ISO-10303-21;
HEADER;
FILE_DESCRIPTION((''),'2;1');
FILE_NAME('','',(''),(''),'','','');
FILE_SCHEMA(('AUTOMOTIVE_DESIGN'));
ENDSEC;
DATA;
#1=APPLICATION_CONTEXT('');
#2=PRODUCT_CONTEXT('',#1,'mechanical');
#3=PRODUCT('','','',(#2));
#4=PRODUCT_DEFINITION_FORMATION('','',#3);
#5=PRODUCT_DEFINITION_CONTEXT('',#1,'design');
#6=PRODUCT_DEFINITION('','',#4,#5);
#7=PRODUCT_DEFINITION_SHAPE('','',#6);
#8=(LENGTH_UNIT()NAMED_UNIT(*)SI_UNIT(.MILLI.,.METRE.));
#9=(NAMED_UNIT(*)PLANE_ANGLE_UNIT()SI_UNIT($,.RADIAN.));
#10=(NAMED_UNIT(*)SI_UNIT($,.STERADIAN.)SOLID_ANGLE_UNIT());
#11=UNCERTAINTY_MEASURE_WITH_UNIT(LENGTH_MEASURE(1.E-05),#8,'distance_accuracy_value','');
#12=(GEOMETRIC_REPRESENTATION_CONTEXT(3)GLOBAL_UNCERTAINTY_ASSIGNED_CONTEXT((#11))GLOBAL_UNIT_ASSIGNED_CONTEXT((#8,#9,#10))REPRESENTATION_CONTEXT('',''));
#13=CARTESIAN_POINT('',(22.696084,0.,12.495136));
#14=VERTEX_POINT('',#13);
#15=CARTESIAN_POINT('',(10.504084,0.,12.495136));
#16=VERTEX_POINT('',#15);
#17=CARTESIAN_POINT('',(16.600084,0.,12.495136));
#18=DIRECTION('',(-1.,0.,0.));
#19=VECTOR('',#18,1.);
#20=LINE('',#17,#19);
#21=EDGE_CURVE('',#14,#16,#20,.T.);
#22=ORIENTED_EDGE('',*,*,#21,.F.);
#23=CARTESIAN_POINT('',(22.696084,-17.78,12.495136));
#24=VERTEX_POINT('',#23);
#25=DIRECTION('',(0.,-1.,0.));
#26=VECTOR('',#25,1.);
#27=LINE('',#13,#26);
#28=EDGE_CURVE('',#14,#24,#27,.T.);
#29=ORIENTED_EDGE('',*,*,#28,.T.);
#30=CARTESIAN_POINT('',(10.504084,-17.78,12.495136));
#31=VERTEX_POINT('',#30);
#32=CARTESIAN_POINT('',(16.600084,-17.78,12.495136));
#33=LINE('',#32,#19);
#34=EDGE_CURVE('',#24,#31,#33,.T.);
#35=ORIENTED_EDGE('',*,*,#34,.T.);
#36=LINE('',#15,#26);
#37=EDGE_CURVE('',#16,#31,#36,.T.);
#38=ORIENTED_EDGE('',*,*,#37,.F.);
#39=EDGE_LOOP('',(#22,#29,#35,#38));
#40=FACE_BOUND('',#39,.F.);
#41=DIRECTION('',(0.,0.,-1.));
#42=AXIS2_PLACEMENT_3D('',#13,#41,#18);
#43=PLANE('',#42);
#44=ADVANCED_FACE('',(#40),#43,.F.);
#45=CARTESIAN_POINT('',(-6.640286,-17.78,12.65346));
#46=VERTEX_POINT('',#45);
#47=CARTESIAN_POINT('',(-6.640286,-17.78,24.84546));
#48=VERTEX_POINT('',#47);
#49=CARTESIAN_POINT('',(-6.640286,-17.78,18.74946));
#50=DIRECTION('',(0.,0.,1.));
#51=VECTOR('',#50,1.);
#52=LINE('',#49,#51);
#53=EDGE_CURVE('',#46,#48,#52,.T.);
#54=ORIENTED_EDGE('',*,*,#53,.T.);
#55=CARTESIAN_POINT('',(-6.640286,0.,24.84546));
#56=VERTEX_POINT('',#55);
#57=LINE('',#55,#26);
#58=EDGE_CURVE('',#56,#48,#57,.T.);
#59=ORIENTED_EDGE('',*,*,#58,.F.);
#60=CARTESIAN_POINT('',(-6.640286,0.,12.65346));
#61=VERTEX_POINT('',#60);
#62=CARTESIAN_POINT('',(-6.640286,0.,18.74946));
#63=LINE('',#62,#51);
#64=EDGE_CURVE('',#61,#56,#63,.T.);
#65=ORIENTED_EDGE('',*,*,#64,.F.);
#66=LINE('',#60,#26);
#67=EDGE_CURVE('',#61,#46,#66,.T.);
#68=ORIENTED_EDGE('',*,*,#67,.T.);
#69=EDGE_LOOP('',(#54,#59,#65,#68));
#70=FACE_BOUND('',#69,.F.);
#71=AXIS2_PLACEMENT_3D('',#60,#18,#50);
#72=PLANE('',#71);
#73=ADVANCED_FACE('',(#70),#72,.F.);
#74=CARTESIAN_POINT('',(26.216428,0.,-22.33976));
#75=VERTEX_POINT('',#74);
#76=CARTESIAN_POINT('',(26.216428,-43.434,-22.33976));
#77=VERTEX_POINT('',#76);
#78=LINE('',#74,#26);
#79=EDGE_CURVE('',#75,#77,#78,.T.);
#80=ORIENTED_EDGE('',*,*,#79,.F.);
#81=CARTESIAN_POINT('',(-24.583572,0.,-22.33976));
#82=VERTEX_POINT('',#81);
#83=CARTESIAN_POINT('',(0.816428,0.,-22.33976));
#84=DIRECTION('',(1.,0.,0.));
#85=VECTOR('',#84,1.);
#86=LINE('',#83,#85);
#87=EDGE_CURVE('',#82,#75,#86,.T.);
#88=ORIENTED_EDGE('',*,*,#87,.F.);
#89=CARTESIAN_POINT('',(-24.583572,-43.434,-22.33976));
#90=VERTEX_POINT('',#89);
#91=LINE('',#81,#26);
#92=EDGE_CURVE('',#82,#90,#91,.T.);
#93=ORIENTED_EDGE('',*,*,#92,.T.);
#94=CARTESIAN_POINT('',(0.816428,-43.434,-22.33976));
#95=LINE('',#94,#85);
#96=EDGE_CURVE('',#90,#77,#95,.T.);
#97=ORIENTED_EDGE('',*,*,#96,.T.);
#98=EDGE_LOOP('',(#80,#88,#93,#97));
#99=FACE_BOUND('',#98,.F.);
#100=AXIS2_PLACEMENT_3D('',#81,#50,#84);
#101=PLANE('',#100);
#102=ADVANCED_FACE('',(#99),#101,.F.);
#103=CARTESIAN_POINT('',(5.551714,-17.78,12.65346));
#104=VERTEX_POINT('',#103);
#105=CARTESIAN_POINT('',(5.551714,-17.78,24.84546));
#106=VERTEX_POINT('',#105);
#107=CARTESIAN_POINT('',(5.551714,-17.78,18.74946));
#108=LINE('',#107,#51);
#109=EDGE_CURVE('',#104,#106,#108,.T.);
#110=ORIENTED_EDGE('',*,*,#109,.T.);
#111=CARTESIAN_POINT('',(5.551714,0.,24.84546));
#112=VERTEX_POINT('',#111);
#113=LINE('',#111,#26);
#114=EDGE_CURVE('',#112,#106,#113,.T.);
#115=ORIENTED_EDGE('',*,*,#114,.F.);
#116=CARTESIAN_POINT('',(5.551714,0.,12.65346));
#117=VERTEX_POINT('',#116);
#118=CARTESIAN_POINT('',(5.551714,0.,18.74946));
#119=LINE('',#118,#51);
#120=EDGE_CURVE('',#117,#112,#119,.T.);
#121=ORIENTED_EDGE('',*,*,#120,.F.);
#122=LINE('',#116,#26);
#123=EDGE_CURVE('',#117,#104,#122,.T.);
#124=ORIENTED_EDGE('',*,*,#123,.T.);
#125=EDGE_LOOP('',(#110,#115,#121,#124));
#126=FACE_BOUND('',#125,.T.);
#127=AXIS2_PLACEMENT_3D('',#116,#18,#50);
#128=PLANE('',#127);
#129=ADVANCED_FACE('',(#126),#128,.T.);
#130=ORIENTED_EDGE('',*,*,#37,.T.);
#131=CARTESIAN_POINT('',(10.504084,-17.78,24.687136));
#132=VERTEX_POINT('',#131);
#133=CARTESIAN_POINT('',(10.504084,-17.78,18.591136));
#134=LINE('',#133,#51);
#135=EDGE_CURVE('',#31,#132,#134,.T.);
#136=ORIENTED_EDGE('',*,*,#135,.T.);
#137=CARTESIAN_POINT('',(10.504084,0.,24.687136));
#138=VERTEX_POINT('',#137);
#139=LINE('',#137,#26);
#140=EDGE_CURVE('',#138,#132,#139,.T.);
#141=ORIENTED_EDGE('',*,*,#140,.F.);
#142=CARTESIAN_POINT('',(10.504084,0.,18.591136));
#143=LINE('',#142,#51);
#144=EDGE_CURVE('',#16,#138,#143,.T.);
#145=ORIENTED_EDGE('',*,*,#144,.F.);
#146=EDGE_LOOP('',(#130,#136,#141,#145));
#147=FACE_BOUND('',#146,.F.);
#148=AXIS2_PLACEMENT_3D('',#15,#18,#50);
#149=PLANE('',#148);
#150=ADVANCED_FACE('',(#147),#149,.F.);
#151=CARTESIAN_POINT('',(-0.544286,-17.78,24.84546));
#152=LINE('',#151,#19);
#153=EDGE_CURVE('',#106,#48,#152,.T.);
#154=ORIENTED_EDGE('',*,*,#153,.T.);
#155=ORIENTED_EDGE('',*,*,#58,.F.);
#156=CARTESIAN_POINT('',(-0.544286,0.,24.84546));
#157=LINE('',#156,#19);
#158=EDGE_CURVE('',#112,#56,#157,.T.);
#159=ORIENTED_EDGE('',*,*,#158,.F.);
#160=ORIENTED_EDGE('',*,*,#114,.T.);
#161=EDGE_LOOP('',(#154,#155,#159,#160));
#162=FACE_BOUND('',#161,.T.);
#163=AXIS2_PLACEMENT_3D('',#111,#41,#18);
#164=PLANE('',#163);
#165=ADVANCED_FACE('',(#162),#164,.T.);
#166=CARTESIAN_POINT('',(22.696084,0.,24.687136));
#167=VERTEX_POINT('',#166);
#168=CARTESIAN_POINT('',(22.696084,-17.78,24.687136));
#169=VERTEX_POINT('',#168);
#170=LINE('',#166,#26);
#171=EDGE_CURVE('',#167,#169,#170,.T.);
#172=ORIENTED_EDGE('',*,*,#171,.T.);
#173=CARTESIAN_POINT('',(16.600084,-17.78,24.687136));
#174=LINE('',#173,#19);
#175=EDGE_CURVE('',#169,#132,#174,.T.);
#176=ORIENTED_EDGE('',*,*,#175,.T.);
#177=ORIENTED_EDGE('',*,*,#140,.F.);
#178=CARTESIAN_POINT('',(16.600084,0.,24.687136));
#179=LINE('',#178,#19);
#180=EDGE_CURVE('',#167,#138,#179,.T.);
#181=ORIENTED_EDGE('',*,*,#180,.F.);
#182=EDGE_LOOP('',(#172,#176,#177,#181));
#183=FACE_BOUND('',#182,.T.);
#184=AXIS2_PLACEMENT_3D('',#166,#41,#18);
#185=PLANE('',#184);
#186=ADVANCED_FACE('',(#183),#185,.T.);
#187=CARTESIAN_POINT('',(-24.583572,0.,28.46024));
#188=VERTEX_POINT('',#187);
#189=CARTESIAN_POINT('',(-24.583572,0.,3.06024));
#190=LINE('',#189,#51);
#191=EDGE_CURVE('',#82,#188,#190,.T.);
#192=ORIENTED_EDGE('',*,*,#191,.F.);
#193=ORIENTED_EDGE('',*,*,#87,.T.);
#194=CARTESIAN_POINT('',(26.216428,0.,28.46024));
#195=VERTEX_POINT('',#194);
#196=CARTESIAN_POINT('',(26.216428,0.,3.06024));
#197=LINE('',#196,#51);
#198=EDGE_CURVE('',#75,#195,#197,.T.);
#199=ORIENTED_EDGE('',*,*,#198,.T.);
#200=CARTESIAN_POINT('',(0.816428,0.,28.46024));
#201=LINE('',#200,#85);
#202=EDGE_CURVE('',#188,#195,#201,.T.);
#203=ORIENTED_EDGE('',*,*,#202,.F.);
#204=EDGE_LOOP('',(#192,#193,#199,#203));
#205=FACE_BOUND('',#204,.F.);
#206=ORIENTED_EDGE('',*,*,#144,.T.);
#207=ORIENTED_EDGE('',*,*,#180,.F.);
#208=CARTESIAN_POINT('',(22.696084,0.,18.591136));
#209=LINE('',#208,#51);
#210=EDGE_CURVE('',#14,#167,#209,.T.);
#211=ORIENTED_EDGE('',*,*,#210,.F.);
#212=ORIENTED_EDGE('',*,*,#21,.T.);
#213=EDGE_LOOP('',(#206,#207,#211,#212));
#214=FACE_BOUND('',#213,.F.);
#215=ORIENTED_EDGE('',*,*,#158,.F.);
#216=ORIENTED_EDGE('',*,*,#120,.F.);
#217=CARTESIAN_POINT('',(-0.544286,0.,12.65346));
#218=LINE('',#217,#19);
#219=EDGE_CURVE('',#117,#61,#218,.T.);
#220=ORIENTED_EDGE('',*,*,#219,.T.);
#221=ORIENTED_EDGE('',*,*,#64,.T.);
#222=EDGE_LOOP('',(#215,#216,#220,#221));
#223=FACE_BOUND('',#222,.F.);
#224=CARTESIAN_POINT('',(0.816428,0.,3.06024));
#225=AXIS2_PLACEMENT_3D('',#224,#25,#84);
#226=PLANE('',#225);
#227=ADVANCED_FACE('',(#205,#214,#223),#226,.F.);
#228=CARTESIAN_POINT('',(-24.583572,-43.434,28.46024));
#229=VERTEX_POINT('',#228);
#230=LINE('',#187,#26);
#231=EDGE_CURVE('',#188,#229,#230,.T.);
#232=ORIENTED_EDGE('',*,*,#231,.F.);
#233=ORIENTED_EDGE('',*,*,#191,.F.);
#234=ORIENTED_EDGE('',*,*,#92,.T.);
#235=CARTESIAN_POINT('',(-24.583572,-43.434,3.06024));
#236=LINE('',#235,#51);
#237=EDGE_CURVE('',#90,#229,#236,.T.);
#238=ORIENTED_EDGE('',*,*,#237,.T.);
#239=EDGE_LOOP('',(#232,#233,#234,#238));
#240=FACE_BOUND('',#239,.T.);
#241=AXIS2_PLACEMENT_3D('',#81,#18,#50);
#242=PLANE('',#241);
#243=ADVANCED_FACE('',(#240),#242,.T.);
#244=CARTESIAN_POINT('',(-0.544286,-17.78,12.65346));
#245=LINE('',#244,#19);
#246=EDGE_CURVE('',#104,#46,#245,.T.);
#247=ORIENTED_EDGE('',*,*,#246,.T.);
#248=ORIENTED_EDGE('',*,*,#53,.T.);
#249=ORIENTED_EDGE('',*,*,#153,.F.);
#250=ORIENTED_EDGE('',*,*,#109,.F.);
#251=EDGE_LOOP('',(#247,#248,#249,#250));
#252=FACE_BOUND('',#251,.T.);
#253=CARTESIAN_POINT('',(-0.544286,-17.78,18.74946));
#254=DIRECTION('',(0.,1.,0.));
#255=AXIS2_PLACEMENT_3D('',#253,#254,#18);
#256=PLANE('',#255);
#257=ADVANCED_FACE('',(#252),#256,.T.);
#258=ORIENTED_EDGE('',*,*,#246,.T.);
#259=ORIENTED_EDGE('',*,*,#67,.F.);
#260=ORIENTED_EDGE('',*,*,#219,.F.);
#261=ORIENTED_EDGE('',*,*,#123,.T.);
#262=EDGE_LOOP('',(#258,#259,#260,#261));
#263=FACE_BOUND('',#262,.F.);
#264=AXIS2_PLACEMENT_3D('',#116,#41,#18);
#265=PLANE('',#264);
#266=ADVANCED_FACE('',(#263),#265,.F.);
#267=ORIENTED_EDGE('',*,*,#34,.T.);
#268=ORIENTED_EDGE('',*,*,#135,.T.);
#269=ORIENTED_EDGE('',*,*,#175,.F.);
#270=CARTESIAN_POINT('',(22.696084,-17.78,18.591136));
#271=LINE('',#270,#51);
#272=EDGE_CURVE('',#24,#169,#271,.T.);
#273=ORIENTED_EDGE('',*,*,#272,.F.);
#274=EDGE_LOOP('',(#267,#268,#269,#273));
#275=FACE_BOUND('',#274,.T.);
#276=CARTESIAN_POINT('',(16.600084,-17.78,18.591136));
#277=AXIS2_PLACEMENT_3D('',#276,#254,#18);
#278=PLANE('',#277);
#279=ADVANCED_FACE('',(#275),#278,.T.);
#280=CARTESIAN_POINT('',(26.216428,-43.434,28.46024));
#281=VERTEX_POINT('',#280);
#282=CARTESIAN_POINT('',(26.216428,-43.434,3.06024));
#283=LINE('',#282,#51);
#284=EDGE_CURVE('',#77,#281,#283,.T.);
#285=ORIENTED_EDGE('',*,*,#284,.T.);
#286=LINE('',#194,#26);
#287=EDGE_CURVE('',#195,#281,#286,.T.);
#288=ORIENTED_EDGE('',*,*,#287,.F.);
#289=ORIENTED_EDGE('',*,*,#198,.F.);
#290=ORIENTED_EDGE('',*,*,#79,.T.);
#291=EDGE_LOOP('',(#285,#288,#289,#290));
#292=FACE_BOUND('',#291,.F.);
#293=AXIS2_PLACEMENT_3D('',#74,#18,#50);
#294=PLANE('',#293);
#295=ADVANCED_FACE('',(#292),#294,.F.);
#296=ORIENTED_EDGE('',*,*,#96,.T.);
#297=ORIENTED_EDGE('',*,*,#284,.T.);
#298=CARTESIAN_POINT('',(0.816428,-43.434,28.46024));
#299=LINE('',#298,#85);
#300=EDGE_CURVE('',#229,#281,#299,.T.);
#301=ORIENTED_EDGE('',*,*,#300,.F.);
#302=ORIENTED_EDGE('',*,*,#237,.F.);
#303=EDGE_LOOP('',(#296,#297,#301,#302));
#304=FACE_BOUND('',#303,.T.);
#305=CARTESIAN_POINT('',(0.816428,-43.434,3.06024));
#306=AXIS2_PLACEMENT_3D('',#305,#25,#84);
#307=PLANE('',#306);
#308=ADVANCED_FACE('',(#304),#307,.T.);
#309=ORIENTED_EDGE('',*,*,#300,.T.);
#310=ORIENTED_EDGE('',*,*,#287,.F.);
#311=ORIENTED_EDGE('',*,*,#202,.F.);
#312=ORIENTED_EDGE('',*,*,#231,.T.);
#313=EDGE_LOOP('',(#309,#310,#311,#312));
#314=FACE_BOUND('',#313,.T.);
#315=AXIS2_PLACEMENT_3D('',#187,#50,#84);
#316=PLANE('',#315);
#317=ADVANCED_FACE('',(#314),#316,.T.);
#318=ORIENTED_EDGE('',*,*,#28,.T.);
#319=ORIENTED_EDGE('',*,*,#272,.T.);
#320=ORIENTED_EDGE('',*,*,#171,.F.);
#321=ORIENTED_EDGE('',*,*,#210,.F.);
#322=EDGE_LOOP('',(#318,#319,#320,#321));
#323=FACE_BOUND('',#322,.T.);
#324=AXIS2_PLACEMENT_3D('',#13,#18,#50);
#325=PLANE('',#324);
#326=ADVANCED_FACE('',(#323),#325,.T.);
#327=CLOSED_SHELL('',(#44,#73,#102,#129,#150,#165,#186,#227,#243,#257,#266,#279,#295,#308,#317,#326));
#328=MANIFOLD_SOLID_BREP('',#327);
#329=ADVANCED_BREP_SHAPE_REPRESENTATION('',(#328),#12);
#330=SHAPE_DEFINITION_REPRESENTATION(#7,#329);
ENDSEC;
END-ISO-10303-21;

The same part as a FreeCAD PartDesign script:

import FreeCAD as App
import Part
import Sketcher
from FreeCAD import Vector
Q = App.Units.Quantity

doc = App.newDocument("Part")
body = doc.addObject("PartDesign::Body", "Body")

sketch1 = body.newObject("Sketcher::SketchObject", "Sketch")
sketch1.AttachmentSupport = (doc.getObject("XZ_Plane"), [""])
sketch1.MapMode = "FlatFace"
sketch1.addGeometry(Part.LineSegment(Vector(-24.583572, 28.46024, 0), Vector(-24.583572, -22.33976, 0)), False)
sketch1.addGeometry(Part.LineSegment(Vector(-24.583572, -22.33976, 0), Vector(26.216428, -22.33976, 0)), False)
sketch1.addGeometry(Part.LineSegment(Vector(26.216428, -22.33976, 0), Vector(26.216428, 28.46024, 0)), False)
sketch1.addGeometry(Part.LineSegment(Vector(26.216428, 28.46024, 0), Vector(-24.583572, 28.46024, 0)), False)
sketch1.addConstraint(Sketcher.Constraint("Coincident", 0, 2, 1, 1))
sketch1.addConstraint(Sketcher.Constraint("Coincident", 1, 2, 2, 1))
sketch1.addConstraint(Sketcher.Constraint("Coincident", 2, 2, 3, 1))
sketch1.addConstraint(Sketcher.Constraint("Coincident", 3, 2, 0, 1))
sketch1.addConstraint(Sketcher.Constraint("Vertical", 0))
sketch1.addConstraint(Sketcher.Constraint("Horizontal", 1))
sketch1.addConstraint(Sketcher.Constraint("Vertical", 2))
sketch1.addConstraint(Sketcher.Constraint("Horizontal", 3))
sketch1.addConstraint(Sketcher.Constraint("Equal", 3, 0))
sketch1.addConstraint(Sketcher.Constraint("DistanceX", 1, 1, 1, 2, Q("2 in")))
sketch1.addConstraint(Sketcher.Constraint("DistanceX", 0, 2, -1, 1, Q("24.583572 mm")))
sketch1.addConstraint(Sketcher.Constraint("DistanceY", 0, 2, -1, 1, Q("22.33976 mm")))
pad1 = body.newObject("PartDesign::Pad", "Pad")
pad1.Profile = sketch1
pad1.Length = Q("1.71 in")

sketch2 = body.newObject("Sketcher::SketchObject", "Sketch001")
sketch2.AttachmentSupport = (doc.getObject("XZ_Plane"), [""])
sketch2.MapMode = "FlatFace"
sketch2.addGeometry(Part.LineSegment(Vector(22.696084, 24.687136, 0), Vector(22.696084, 12.495136, 0)), False)
sketch2.addGeometry(Part.LineSegment(Vector(22.696084, 12.495136, 0), Vector(10.504084, 12.495136, 0)), False)
sketch2.addGeometry(Part.LineSegment(Vector(10.504084, 12.495136, 0), Vector(10.504084, 24.687136, 0)), False)
sketch2.addGeometry(Part.LineSegment(Vector(10.504084, 24.687136, 0), Vector(22.696084, 24.687136, 0)), False)
sketch2.addConstraint(Sketcher.Constraint("Coincident", 0, 2, 1, 1))
sketch2.addConstraint(Sketcher.Constraint("Coincident", 1, 2, 2, 1))
sketch2.addConstraint(Sketcher.Constraint("Coincident", 2, 2, 3, 1))
sketch2.addConstraint(Sketcher.Constraint("Coincident", 3, 2, 0, 1))
sketch2.addConstraint(Sketcher.Constraint("Vertical", 0))
sketch2.addConstraint(Sketcher.Constraint("Horizontal", 1))
sketch2.addConstraint(Sketcher.Constraint("Vertical", 2))
sketch2.addConstraint(Sketcher.Constraint("Horizontal", 3))
sketch2.addConstraint(Sketcher.Constraint("Equal", 3, 0))
sketch2.addConstraint(Sketcher.Constraint("DistanceX", 1, 2, 1, 1, Q("0.48 in")))
sketch2.addConstraint(Sketcher.Constraint("DistanceX", -1, 1, 0, 2, Q("22.696084 mm")))
sketch2.addConstraint(Sketcher.Constraint("DistanceY", -1, 1, 0, 2, Q("12.495136 mm")))
pocket1 = body.newObject("PartDesign::Pocket", "Pocket")
pocket1.Profile = sketch2
pocket1.Length = Q("0.7 in")
pocket1.Reversed = True

sketch3 = body.newObject("Sketcher::SketchObject", "Sketch002")
sketch3.AttachmentSupport = (doc.getObject("XZ_Plane"), [""])
sketch3.MapMode = "FlatFace"
sketch3.addGeometry(Part.LineSegment(Vector(5.551714, 24.84546, 0), Vector(5.551714, 12.65346, 0)), False)
sketch3.addGeometry(Part.LineSegment(Vector(5.551714, 12.65346, 0), Vector(-6.640286, 12.65346, 0)), False)
sketch3.addGeometry(Part.LineSegment(Vector(-6.640286, 12.65346, 0), Vector(-6.640286, 24.84546, 0)), False)
sketch3.addGeometry(Part.LineSegment(Vector(-6.640286, 24.84546, 0), Vector(5.551714, 24.84546, 0)), False)
sketch3.addConstraint(Sketcher.Constraint("Coincident", 0, 2, 1, 1))
sketch3.addConstraint(Sketcher.Constraint("Coincident", 1, 2, 2, 1))
sketch3.addConstraint(Sketcher.Constraint("Coincident", 2, 2, 3, 1))
sketch3.addConstraint(Sketcher.Constraint("Coincident", 3, 2, 0, 1))
sketch3.addConstraint(Sketcher.Constraint("Vertical", 0))
sketch3.addConstraint(Sketcher.Constraint("Horizontal", 1))
sketch3.addConstraint(Sketcher.Constraint("Vertical", 2))
sketch3.addConstraint(Sketcher.Constraint("Horizontal", 3))
sketch3.addConstraint(Sketcher.Constraint("Equal", 3, 0))
sketch3.addConstraint(Sketcher.Constraint("DistanceX", 1, 2, 1, 1, Q("0.48 in")))
sketch3.addConstraint(Sketcher.Constraint("DistanceY", -1, 1, 0, 2, Q("12.65346 mm")))
sketch3.addConstraint(Sketcher.Constraint("DistanceX", -1, 1, 0, 2, Q("5.551714 mm")))
pocket2 = body.newObject("PartDesign::Pocket", "Pocket001")
pocket2.Profile = sketch3
pocket2.Length = Q("0.7 in")
pocket2.Reversed = True

doc.recompute()
